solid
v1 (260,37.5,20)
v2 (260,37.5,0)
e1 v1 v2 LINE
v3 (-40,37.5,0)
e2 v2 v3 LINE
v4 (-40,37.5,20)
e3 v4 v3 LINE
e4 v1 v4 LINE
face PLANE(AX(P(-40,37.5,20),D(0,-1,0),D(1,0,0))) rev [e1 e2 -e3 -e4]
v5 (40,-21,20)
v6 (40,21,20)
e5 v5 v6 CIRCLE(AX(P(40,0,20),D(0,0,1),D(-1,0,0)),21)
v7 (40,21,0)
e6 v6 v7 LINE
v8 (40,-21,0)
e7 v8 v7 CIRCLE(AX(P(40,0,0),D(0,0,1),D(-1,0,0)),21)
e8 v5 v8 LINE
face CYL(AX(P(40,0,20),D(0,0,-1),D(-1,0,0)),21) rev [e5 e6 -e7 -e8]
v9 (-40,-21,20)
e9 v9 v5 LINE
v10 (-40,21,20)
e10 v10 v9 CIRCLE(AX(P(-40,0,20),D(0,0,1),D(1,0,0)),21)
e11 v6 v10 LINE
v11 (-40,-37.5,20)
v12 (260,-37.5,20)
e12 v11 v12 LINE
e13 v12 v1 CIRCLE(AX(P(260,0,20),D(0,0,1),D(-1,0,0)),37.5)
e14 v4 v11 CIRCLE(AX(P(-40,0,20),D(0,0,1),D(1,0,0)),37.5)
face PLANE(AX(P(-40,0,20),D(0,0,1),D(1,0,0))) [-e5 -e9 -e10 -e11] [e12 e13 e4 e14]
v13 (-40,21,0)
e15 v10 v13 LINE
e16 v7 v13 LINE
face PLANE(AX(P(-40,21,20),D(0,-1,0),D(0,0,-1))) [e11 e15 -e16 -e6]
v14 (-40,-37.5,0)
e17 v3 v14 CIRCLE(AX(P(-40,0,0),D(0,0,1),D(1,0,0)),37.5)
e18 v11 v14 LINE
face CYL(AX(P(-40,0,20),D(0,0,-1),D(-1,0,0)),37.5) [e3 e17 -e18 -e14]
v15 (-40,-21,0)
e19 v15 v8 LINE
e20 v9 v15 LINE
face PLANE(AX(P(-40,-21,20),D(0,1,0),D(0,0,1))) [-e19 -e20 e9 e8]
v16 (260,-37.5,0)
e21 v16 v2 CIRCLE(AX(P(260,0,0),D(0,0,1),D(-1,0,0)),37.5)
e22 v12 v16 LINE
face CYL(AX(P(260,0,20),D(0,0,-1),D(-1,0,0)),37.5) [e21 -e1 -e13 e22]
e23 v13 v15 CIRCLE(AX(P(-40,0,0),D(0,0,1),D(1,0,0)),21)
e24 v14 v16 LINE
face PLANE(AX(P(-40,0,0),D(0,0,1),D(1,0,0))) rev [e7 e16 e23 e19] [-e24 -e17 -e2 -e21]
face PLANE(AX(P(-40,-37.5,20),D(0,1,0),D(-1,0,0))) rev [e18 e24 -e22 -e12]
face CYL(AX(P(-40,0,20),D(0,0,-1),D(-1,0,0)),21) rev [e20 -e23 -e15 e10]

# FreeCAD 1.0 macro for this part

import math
import FreeCAD as App
import Part
import Sketcher
from FreeCAD import Vector

doc = App.newDocument("Part")
body = doc.addObject("PartDesign::Body", "Body")

sketch1 = body.newObject("Sketcher::SketchObject", "Sketch")
sketch1.AttachmentSupport = (doc.getObject("XY_Plane"), [""])
sketch1.MapMode = "FlatFace"
sketch1.addGeometry([
    Part.LineSegment(Vector(260, 38, 0), Vector(-40, 38, 0)),
    Part.ArcOfCircle(Part.Circle(Vector(-40, 0, 0), Vector(0, 0, 1), 38), math.radians(90), math.radians(270)),
    Part.LineSegment(Vector(-40, -38, 0), Vector(260, -38, 0)),
    Part.ArcOfCircle(Part.Circle(Vector(260, 0, 0), Vector(0, 0, 1), 38), math.radians(-90), math.radians(90)),
    Part.LineSegment(Vector(-40, 21, 0), Vector(40, 21, 0)),
    Part.ArcOfCircle(Part.Circle(Vector(40, 0, 0), Vector(0, 0, 1), 21), math.radians(-90), math.radians(90)),
    Part.LineSegment(Vector(40, -21, 0), Vector(-40, -21, 0)),
    Part.ArcOfCircle(Part.Circle(Vector(-40, 0, 0), Vector(0, 0, 1), 21), math.radians(90), math.radians(270)),
], False)
sketch1.addConstraint([
    Sketcher.Constraint("Tangent", 0, 2, 1, 1),
    Sketcher.Constraint("Tangent", 1, 2, 2, 1),
    Sketcher.Constraint("Tangent", 2, 2, 3, 1),
    Sketcher.Constraint("Tangent", 3, 2, 0, 1),
    Sketcher.Constraint("Tangent", 4, 2, 5, 2),
    Sketcher.Constraint("Tangent", 5, 1, 6, 1),
    Sketcher.Constraint("Tangent", 6, 2, 7, 2),
    Sketcher.Constraint("Tangent", 7, 1, 4, 1),
    Sketcher.Constraint("Horizontal", 0),
    Sketcher.Constraint("Horizontal", 2),
    Sketcher.Constraint("Horizontal", 4),
    Sketcher.Constraint("Horizontal", 6),
    Sketcher.Constraint("Coincident", 7, 3, 1, 3),
    Sketcher.Constraint("Symmetric", 1, 3, 5, 3, -1, 1),
    Sketcher.Constraint("Radius", 5, 21.0),
    Sketcher.Constraint("Radius", 1, 37.5),
    Sketcher.Constraint("DistanceX", 0, 2, 0, 1, 300.0),
    Sketcher.Constraint("DistanceX", 4, 1, 4, 2, 80.0),
])
pad1 = body.newObject("PartDesign::Pad", "Pad")
pad1.Profile = sketch1
pad1.Length = 20

doc.recompute()
